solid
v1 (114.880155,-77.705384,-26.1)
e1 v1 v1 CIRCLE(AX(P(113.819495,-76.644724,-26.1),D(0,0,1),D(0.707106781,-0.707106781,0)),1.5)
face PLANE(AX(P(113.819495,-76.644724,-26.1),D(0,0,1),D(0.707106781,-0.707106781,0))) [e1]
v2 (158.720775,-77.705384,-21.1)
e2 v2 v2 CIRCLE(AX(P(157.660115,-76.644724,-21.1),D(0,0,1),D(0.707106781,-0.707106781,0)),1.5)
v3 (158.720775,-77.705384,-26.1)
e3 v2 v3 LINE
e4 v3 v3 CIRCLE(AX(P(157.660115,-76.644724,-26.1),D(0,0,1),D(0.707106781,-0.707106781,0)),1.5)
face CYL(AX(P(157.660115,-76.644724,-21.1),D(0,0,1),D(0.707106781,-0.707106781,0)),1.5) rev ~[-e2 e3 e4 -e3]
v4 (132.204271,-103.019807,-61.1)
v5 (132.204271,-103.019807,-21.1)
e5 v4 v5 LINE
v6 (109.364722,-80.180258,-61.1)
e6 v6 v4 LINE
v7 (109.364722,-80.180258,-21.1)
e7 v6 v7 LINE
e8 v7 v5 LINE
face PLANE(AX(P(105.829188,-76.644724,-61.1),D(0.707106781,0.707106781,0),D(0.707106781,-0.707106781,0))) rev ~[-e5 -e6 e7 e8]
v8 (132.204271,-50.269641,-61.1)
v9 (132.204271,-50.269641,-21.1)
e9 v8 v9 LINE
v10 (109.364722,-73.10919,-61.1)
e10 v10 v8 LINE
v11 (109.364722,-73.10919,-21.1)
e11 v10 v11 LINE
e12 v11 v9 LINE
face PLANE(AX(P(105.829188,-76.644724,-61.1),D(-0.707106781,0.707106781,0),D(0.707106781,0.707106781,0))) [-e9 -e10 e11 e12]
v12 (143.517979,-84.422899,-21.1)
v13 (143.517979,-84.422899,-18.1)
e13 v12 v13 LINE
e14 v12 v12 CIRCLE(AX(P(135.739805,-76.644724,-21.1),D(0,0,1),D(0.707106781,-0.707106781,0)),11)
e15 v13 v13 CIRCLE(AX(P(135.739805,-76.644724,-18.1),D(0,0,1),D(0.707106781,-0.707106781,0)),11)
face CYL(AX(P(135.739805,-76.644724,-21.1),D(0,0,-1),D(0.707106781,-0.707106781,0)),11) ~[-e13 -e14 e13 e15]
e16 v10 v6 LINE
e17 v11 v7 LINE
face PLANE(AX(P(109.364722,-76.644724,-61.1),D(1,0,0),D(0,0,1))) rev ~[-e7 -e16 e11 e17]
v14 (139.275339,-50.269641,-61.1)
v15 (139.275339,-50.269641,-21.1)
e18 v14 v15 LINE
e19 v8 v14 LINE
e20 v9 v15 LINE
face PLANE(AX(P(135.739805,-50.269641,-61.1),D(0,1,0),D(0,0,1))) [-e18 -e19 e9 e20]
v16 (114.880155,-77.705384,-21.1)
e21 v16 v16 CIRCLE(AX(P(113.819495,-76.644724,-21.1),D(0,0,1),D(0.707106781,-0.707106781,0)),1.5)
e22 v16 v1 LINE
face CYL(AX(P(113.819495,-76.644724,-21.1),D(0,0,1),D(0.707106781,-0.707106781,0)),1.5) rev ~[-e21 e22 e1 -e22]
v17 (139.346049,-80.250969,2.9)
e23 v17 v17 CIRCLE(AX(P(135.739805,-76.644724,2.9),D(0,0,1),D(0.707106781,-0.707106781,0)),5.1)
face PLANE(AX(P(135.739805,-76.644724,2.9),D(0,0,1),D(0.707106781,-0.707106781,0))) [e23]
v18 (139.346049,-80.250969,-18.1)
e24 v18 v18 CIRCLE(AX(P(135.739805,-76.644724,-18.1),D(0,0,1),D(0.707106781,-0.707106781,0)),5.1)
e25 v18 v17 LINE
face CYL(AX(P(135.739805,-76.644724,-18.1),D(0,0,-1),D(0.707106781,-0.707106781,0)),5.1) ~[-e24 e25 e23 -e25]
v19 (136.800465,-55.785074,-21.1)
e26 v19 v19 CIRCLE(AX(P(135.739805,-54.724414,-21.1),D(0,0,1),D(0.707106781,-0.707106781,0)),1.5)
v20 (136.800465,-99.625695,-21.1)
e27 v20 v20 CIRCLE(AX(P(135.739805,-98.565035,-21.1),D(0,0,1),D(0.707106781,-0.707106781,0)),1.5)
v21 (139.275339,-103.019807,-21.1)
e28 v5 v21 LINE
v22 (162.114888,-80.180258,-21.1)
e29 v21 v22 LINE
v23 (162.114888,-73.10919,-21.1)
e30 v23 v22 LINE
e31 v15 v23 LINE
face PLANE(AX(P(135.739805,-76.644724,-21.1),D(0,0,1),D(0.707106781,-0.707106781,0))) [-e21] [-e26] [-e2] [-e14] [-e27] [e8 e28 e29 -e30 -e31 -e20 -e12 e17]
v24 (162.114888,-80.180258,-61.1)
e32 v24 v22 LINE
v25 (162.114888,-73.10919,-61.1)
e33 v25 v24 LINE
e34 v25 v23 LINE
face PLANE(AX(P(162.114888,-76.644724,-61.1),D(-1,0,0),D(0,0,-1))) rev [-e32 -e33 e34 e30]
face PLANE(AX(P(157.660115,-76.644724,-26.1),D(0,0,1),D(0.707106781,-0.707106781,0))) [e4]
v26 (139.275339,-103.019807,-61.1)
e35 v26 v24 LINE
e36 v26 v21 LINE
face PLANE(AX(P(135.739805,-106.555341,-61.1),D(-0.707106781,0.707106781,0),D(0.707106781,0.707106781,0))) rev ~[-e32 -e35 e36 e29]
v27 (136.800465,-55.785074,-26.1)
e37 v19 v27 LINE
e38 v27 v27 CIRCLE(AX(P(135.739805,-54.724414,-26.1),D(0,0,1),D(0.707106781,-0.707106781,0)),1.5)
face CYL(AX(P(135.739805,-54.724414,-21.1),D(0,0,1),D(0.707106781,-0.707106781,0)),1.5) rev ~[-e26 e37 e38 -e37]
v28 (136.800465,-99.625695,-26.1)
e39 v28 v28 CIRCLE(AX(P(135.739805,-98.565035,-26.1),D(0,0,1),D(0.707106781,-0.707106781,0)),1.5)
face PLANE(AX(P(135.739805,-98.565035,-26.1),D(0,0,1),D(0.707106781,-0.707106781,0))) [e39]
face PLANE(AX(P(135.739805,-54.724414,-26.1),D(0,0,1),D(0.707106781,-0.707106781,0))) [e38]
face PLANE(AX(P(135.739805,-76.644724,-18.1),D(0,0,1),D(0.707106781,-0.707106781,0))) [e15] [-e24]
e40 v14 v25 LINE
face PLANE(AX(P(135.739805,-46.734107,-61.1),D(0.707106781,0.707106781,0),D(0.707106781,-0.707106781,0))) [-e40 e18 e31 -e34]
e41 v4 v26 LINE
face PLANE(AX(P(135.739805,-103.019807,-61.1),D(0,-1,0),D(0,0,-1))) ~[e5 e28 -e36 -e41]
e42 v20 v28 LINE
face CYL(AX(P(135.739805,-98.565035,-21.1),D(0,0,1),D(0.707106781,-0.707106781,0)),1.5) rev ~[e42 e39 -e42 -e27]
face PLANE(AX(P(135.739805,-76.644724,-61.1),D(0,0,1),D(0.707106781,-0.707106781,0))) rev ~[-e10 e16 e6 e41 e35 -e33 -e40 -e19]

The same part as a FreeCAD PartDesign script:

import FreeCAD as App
import Part
import Sketcher
from FreeCAD import Vector


def edges_at(feature, points):
    """Names of the edges that pass closest to the given points."""
    edges = feature.Shape.Edges
    near = lambda p: min(range(len(edges)), key=lambda i: edges[i].distToShape(Part.Vertex(*p))[0])
    return sorted({f"Edge{near(p) + 1}" for p in points})

doc = App.newDocument("Part")
body = doc.addObject("PartDesign::Body", "Body")

# Sketch on XY plane
sketch1 = doc.addObject("Sketcher::SketchObject", "Sketch")
body.addObject(sketch1)
sketch1.AttachmentSupport = (doc.XY_Plane, [""])
sketch1.MapMode = "FlatFace"
sketch1.addGeometry([
    Part.LineSegment(Vector(-21.15, 21.15, 0), Vector(-21.15, -21.15, 0)),
    Part.LineSegment(Vector(-21.15, -21.15, 0), Vector(21.15, -21.15, 0)),
    Part.LineSegment(Vector(21.15, -21.15, 0), Vector(21.15, 21.15, 0)),
    Part.LineSegment(Vector(21.15, 21.15, 0), Vector(-21.15, 21.15, 0)),
], False)
sketch1.addConstraint([
    Sketcher.Constraint("Coincident", 0, 2, 1, 1),
    Sketcher.Constraint("Coincident", 1, 2, 2, 1),
    Sketcher.Constraint("Coincident", 2, 2, 3, 1),
    Sketcher.Constraint("Coincident", 3, 2, 0, 1),
    Sketcher.Constraint("Vertical", 0),
    Sketcher.Constraint("Horizontal", 1),
    Sketcher.Constraint("Vertical", 2),
    Sketcher.Constraint("Horizontal", 3),
    Sketcher.Constraint("Symmetric", 0, 2, 2, 2, -1, 1),
    Sketcher.Constraint("Equal", 3, 0),
    Sketcher.Constraint("DistanceX", 1, 1, 1, 2, 42.3),
])
pad1 = doc.addObject("PartDesign::Pad", "Pad")
body.addObject(pad1)
pad1.Profile = sketch1
pad1.Length = 40

# Sketch on XY plane
sketch2 = doc.addObject("Sketcher::SketchObject", "Sketch001")
body.addObject(sketch2)
sketch2.AttachmentSupport = (doc.XY_Plane, [""])
sketch2.MapMode = "FlatFace"
sketch2.AttachmentOffset = App.Placement(Vector(0, 0, 40), App.Rotation())
sketch2.addGeometry(Part.Circle(Vector(0, 0, 0), Vector(0, 0, 1), 11), False)
sketch2.addConstraint([
    Sketcher.Constraint("Coincident", 0, 3, -1, 1),
    Sketcher.Constraint("Diameter", 0, 22.0),
])
pad2 = doc.addObject("PartDesign::Pad", "Pad001")
body.addObject(pad2)
pad2.Profile = sketch2
pad2.Length = 3

# Sketch on XY plane
sketch3 = doc.addObject("Sketcher::SketchObject", "Sketch002")
body.addObject(sketch3)
sketch3.AttachmentSupport = (doc.XY_Plane, [""])
sketch3.MapMode = "FlatFace"
sketch3.AttachmentOffset = App.Placement(Vector(0, 0, 43), App.Rotation())
sketch3.addGeometry(Part.Circle(Vector(0, 0, 0), Vector(0, 0, 1), 5.1), False)
sketch3.addConstraint([
    Sketcher.Constraint("Coincident", 0, 3, -1, 1),
    Sketcher.Constraint("Diameter", 0, 10.2),
])
pad3 = doc.addObject("PartDesign::Pad", "Pad002")
body.addObject(pad3)
pad3.Profile = sketch3
pad3.Length = 21

# Sketch on XY plane
sketch4 = doc.addObject("Sketcher::SketchObject", "Sketch003")
body.addObject(sketch4)
sketch4.AttachmentSupport = (doc.XY_Plane, [""])
sketch4.MapMode = "FlatFace"
sketch4.AttachmentOffset = App.Placement(Vector(0, 0, 40), App.Rotation())
sketch4.addGeometry([
    Part.Circle(Vector(-15.5, 15.5, 0), Vector(0, 0, 1), 1.5),
    Part.Circle(Vector(15.5, 15.5, 0), Vector(0, 0, 1), 1.5),
    Part.Circle(Vector(15.5, -15.5, 0), Vector(0, 0, 1), 1.5),
    Part.Circle(Vector(-15.5, -15.5, 0), Vector(0, 0, 1), 1.5),
], False)
sketch4.addConstraint([
    Sketcher.Constraint("Equal", 0, 1),
    Sketcher.Constraint("Equal", 1, 2),
    Sketcher.Constraint("Equal", 2, 3),
    Sketcher.Constraint("Symmetric", 0, 3, 2, 3, -1, 1),
    Sketcher.Constraint("Symmetric", 1, 3, 3, 3, -1, 1),
    Sketcher.Constraint("Symmetric", 0, 3, 1, 3, -2),
    Sketcher.Constraint("Diameter", 0, 3.0),
    Sketcher.Constraint("DistanceX", 0, 3, 1, 3, 31.0),
    Sketcher.Constraint("DistanceY", 2, 3, 1, 3, 31.0),
])
pocket1 = doc.addObject("PartDesign::Pocket", "Pocket")
body.addObject(pocket1)
pocket1.Profile = sketch4
pocket1.Length = 5
doc.recompute()

chamfer = doc.addObject("PartDesign::Chamfer", "Chamfer")
body.addObject(chamfer)
chamfer.Base = (pocket1, edges_at(pocket1, [
    (21.15, 21.15, 20),
    (21.15, -21.15, 20),
    (-21.15, 21.15, 20),
    (-21.15, -21.15, 20),
]))
chamfer.Size = 5
body2 = doc.addObject("PartDesign::Body", "Body001")
doc.recompute()

body.Placement = App.Placement(Vector(135.739805, -76.644724, -61.1), App.Rotation(Vector(0, 0, -1), 45))
boolean = doc.addObject("PartDesign::Boolean", "Boolean")
body2.addObject(boolean)
boolean.Type = "Fuse"
boolean.addObjects([body])

doc.recompute()
